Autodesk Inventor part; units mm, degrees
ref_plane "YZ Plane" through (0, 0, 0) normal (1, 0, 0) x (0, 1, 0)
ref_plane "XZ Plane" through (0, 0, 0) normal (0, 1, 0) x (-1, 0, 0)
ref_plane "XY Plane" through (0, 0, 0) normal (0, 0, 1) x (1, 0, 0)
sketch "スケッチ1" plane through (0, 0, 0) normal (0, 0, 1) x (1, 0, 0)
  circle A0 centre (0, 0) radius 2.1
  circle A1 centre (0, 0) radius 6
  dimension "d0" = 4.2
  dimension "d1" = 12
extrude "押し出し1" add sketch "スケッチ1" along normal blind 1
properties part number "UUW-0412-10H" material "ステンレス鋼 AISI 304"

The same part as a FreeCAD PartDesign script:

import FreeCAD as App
import Part
import Sketcher
from FreeCAD import Vector

doc = App.newDocument("Part")
body = doc.addObject("PartDesign::Body", "Body")

# Sketch on XY plane
sketch1 = body.newObject("Sketcher::SketchObject", "Sketch")
sketch1.AttachmentSupport = (doc.getObject("XY_Plane"), [""])
sketch1.MapMode = "FlatFace"
sketch1.addGeometry([
    Part.Circle(Vector(0, 0, 0), Vector(0, 0, 1), 6),
    Part.Circle(Vector(0, 0, 0), Vector(0, 0, 1), 2.1),
], False)
sketch1.addConstraint([
    Sketcher.Constraint("Coincident", 0, 3, -1, 1),
    Sketcher.Constraint("Coincident", 1, 3, -1, 1),
    Sketcher.Constraint("Diameter", 0, 12.0),
    Sketcher.Constraint("Diameter", 1, 4.2),
])
pad1 = body.newObject("PartDesign::Pad", "Pad")
pad1.Profile = sketch1
pad1.Length = 1

doc.recompute()
